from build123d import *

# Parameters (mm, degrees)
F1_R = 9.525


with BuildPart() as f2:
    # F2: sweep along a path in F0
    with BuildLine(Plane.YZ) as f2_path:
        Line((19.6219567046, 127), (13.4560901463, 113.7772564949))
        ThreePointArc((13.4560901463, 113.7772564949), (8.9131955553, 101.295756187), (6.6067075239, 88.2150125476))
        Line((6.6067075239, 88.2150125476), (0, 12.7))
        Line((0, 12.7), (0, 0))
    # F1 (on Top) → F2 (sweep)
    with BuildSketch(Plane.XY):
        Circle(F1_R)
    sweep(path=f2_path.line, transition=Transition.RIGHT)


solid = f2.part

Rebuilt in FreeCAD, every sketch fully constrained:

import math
import FreeCAD as App
import Part
import Sketcher
Q = App.Units.Quantity

doc = App.newDocument("Part")
body = doc.addObject("PartDesign::Body", "Body")

sketch1 = body.newObject("Sketcher::SketchObject", "Sketch")
sketch1.AttachmentSupport = (doc.getObject("XY_Plane"), [""])
sketch1.MapMode = "FlatFace"
sketch1.addGeometry(Part.Circle(App.Vector(0, 0, 0), App.Vector(0, 0, 1), 10), False)
sketch1.addConstraint(Sketcher.Constraint("Coincident", 0, 3, -1, 1))
sketch1.addConstraint(Sketcher.Constraint("Diameter", 0, Q("0.75 in")))

sketch2 = body.newObject("Sketcher::SketchObject", "Sketch001")
sketch2.AttachmentSupport = (doc.getObject("YZ_Plane"), [""])
sketch2.MapMode = "FlatFace"
sketch2.addGeometry(Part.LineSegment(App.Vector(20, 127, 0), App.Vector(13, 114, 0)), False)
sketch2.addGeometry(Part.ArcOfCircle(Part.Circle(App.Vector(83, 82, 0), App.Vector(0, 0, 1), 76), math.radians(155), math.radians(175)), False)
sketch2.addGeometry(Part.LineSegment(App.Vector(7, 88, 0), App.Vector(0, 13, 0)), False)
sketch2.addGeometry(Part.LineSegment(App.Vector(0, 13, 0), App.Vector(0, 0, 0)), False)
sketch2.addConstraint(Sketcher.Constraint("Tangent", 0, 2, 1, 1))
sketch2.addConstraint(Sketcher.Constraint("Tangent", 1, 2, 2, 1))
sketch2.addConstraint(Sketcher.Constraint("Coincident", 2, 2, 3, 1))
sketch2.addConstraint(Sketcher.Constraint("Vertical", 3))
sketch2.addConstraint(Sketcher.Constraint("Coincident", 3, 2, -1, 1))
sketch2.addConstraint(Sketcher.Constraint("Radius", 1, Q("3 in")))
sketch2.addConstraint(Sketcher.Constraint("DistanceY", 3, 2, 3, 1, Q("0.5 in")))
sketch2.addConstraint(Sketcher.Constraint("DistanceY", -1, 1, 0, 1, Q("5 in")))
sketch2.addConstraint(Sketcher.Constraint("Angle", 0, Q("-115 deg")))
sketch2.addConstraint(Sketcher.Constraint("Angle", 2, Q("-95 deg")))
sketch2.addConstraint(Sketcher.Constraint("DistanceX", -1, 1, 0, 2, Q("13.45609 mm")))
doc.recompute()

additivepipe = body.newObject("PartDesign::AdditivePipe", "AdditivePipe")
additivepipe.Profile = sketch1
additivepipe.Spine = (sketch2, ["Edge1", "Edge2", "Edge3", "Edge4"])
additivepipe.Transition = "Right corner"

doc.recompute()
